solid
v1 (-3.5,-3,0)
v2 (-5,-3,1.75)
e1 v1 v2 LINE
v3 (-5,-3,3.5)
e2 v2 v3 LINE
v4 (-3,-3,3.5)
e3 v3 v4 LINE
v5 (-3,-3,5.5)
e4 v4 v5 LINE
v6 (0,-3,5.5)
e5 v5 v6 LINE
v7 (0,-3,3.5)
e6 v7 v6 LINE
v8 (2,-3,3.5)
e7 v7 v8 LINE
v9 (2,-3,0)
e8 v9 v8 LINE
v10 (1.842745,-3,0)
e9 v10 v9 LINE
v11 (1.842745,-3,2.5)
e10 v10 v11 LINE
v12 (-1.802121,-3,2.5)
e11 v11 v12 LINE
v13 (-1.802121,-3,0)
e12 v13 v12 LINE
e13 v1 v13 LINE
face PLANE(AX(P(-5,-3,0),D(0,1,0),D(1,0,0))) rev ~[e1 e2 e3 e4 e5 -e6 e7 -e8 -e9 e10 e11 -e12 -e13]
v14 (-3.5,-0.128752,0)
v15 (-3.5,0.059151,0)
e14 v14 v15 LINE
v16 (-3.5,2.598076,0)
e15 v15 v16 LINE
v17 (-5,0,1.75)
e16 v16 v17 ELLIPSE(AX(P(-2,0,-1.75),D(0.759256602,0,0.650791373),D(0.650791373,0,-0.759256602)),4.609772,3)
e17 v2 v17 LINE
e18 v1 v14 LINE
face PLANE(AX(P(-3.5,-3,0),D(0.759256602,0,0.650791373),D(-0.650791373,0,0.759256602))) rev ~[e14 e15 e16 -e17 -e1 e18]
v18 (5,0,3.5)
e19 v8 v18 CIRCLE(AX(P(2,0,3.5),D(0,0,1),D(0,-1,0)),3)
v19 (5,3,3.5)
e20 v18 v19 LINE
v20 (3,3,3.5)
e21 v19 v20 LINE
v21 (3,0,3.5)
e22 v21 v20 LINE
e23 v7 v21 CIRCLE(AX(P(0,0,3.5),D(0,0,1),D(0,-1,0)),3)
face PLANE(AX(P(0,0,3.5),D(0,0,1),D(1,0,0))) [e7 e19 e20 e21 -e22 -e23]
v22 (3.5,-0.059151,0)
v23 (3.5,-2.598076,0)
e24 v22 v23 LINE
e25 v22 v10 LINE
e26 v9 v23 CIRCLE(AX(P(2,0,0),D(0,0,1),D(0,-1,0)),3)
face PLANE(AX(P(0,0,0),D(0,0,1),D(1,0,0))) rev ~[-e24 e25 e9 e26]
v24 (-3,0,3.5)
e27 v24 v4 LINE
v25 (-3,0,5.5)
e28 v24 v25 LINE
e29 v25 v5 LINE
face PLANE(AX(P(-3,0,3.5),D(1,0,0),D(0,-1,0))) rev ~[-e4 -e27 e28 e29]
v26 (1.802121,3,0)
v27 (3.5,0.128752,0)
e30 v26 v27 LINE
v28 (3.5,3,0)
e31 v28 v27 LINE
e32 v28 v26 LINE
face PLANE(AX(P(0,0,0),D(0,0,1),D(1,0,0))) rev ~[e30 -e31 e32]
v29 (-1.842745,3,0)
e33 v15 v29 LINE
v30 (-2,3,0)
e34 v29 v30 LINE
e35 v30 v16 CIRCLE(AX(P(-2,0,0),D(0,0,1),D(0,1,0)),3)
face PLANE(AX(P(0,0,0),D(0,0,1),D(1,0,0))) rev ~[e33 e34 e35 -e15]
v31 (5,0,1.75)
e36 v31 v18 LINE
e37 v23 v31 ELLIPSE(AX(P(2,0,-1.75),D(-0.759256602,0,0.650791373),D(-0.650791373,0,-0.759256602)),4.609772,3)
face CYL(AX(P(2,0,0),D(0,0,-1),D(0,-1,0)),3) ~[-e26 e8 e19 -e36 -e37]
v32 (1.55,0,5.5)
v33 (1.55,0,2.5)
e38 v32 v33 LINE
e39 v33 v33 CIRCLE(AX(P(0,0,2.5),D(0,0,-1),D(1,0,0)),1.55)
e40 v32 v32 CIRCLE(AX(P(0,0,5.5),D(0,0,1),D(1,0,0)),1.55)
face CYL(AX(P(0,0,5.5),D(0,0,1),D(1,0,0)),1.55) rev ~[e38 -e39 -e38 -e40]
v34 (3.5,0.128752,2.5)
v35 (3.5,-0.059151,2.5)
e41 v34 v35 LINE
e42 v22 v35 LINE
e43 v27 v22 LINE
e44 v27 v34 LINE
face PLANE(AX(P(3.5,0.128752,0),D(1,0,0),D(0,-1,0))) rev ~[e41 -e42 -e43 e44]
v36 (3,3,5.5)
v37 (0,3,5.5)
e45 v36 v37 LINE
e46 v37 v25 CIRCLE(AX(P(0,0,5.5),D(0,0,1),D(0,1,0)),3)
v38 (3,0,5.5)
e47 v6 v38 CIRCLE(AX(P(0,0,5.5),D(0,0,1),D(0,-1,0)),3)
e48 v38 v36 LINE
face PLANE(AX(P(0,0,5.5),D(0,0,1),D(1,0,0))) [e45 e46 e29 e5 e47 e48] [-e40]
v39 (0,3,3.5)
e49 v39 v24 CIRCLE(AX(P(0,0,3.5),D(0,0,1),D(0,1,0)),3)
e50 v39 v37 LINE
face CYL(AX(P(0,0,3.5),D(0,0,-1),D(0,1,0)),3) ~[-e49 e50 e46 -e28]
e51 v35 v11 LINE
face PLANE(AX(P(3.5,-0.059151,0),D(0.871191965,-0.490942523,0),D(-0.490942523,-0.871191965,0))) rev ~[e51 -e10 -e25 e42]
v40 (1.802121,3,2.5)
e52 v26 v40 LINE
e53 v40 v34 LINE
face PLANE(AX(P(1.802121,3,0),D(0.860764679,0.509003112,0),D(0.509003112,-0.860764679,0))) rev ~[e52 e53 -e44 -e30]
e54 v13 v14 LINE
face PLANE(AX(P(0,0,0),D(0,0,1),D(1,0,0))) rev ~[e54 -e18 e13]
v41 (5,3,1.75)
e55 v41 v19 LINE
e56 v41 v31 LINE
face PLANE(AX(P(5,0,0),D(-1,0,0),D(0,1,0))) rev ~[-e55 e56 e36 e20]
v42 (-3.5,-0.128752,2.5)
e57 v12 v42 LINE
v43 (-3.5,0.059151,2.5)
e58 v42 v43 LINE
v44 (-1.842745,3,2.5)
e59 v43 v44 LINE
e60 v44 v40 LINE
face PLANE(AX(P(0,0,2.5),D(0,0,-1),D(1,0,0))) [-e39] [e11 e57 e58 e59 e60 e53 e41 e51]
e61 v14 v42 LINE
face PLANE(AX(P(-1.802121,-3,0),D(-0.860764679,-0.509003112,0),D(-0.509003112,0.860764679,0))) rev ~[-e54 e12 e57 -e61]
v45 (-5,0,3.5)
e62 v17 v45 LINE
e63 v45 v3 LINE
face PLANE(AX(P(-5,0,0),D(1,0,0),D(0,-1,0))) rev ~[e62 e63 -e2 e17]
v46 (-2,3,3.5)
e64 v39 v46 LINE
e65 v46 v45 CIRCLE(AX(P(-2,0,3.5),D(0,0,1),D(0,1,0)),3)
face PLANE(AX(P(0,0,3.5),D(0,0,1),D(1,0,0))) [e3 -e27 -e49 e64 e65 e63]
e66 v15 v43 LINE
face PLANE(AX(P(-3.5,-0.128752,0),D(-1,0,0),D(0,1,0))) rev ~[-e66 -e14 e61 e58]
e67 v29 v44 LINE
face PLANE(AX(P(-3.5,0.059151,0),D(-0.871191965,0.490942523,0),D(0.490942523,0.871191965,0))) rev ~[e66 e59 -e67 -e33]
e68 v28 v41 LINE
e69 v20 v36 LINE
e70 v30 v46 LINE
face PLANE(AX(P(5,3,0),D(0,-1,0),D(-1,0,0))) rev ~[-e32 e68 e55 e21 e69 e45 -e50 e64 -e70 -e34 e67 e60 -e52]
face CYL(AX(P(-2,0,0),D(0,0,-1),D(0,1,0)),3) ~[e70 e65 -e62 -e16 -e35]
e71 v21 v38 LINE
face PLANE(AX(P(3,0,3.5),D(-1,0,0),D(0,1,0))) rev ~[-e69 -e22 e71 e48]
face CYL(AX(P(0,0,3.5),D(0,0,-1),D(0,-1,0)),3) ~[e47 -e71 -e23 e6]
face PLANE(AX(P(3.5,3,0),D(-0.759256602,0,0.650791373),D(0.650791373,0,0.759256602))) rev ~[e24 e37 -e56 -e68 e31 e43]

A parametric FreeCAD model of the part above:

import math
import FreeCAD as App
import Part
import Sketcher

V = App.Vector
Q = App.Units.Quantity

doc = App.newDocument("Part")
body = doc.addObject("PartDesign::Body", "Body")

sketch1 = doc.addObject("Sketcher::SketchObject", "Sketch")
body.addObject(sketch1)
sketch1.AttachmentSupport = (doc.XY_Plane, [""])
sketch1.MapMode = "FlatFace"
sketch1.addGeometry(Part.LineSegment(V(-5, 0, 0), V(-5, -3, 0)), False)
sketch1.addGeometry(Part.LineSegment(V(-5, -3, 0), V(2, -3, 0)), False)
sketch1.addGeometry(Part.ArcOfCircle(Part.Circle(V(2, 0, 0), V(0, 0, 1), 3), math.radians(-90), math.radians(0)), False)
sketch1.addGeometry(Part.LineSegment(V(5, 0, 0), V(5, 3, 0)), False)
sketch1.addGeometry(Part.LineSegment(V(5, 3, 0), V(-2, 3, 0)), False)
sketch1.addGeometry(Part.ArcOfCircle(Part.Circle(V(-2, 0, 0), V(0, 0, 1), 3), math.radians(90), math.radians(180)), False)
sketch1.addConstraint(Sketcher.Constraint("Coincident", 0, 2, 1, 1))
sketch1.addConstraint(Sketcher.Constraint("Tangent", 1, 2, 2, 1))
sketch1.addConstraint(Sketcher.Constraint("Tangent", 2, 2, 3, 1))
sketch1.addConstraint(Sketcher.Constraint("Coincident", 3, 2, 4, 1))
sketch1.addConstraint(Sketcher.Constraint("Tangent", 4, 2, 5, 1))
sketch1.addConstraint(Sketcher.Constraint("Tangent", 5, 2, 0, 1))
sketch1.addConstraint(Sketcher.Constraint("Vertical", 0))
sketch1.addConstraint(Sketcher.Constraint("Horizontal", 1))
sketch1.addConstraint(Sketcher.Constraint("Vertical", 3))
sketch1.addConstraint(Sketcher.Constraint("Horizontal", 4))
sketch1.addConstraint(Sketcher.Constraint("Equal", 2, 5))
sketch1.addConstraint(Sketcher.Constraint("Symmetric", 2, 3, 5, 3, -1, 1))
sketch1.addConstraint(Sketcher.Constraint("PointOnObject", 2, 3, -1))
sketch1.addConstraint(Sketcher.Constraint("Radius", 2, Q("3 mm")))
sketch1.addConstraint(Sketcher.Constraint("DistanceX", 1, 1, 1, 2, Q("7 mm")))
pad1 = doc.addObject("PartDesign::Pad", "Pad")
body.addObject(pad1)
pad1.Profile = sketch1
pad1.Length = 3.5

sketch2 = doc.addObject("Sketcher::SketchObject", "Sketch001")
body.addObject(sketch2)
sketch2.AttachmentSupport = (doc.XY_Plane, [""])
sketch2.MapMode = "FlatFace"
sketch2.AttachmentOffset = App.Placement(V(0, 0, 3.5), App.Rotation())
sketch2.addGeometry(Part.LineSegment(V(3, 0, 0), V(3, 3, 0)), False)
sketch2.addGeometry(Part.LineSegment(V(3, 3, 0), V(0, 3, 0)), False)
sketch2.addGeometry(Part.ArcOfCircle(Part.Circle(V(0, 0, 0), V(0, 0, 1), 3), math.radians(90), math.radians(180)), False)
sketch2.addGeometry(Part.LineSegment(V(-3, 0, 0), V(-3, -3, 0)), False)
sketch2.addGeometry(Part.LineSegment(V(-3, -3, 0), V(0, -3, 0)), False)
sketch2.addGeometry(Part.ArcOfCircle(Part.Circle(V(0, 0, 0), V(0, 0, 1), 3), math.radians(-90), math.radians(0)), False)
sketch2.addConstraint(Sketcher.Constraint("Coincident", 0, 2, 1, 1))
sketch2.addConstraint(Sketcher.Constraint("Tangent", 1, 2, 2, 1))
sketch2.addConstraint(Sketcher.Constraint("Tangent", 2, 2, 3, 1))
sketch2.addConstraint(Sketcher.Constraint("Coincident", 3, 2, 4, 1))
sketch2.addConstraint(Sketcher.Constraint("Tangent", 4, 2, 5, 1))
sketch2.addConstraint(Sketcher.Constraint("Tangent", 5, 2, 0, 1))
sketch2.addConstraint(Sketcher.Constraint("Vertical", 0))
sketch2.addConstraint(Sketcher.Constraint("Horizontal", 1))
sketch2.addConstraint(Sketcher.Constraint("Vertical", 3))
sketch2.addConstraint(Sketcher.Constraint("Horizontal", 4))
sketch2.addConstraint(Sketcher.Constraint("Coincident", 2, 3, -1, 1))
sketch2.addConstraint(Sketcher.Constraint("Coincident", 5, 3, -1, 1))
sketch2.addConstraint(Sketcher.Constraint("Equal", 2, 5))
sketch2.addConstraint(Sketcher.Constraint("Radius", 2, Q("3 mm")))
pad2 = doc.addObject("PartDesign::Pad", "Pad001")
body.addObject(pad2)
pad2.Profile = sketch2
pad2.Length = 2

sketch3 = doc.addObject("Sketcher::SketchObject", "Sketch002")
body.addObject(sketch3)
sketch3.AttachmentSupport = (doc.XY_Plane, [""])
sketch3.MapMode = "FlatFace"
sketch3.AttachmentOffset = App.Placement(V(0, 0, 5.5), App.Rotation())
sketch3.addGeometry(Part.Circle(V(0, 0, 0), V(0, 0, 1), 1.55), False)
sketch3.addConstraint(Sketcher.Constraint("Coincident", 0, 3, -1, 1))
sketch3.addConstraint(Sketcher.Constraint("Diameter", 0, Q("3.1 mm")))
pocket1 = doc.addObject("PartDesign::Pocket", "Pocket")
body.addObject(pocket1)
pocket1.Profile = sketch3
pocket1.Length = 25

sketch4 = doc.addObject("Sketcher::SketchObject", "Sketch003")
body.addObject(sketch4)
sketch4.AttachmentSupport = (doc.XZ_Plane, [""])
sketch4.MapMode = "FlatFace"
sketch4.AttachmentOffset = App.Placement(V(0, 0, 3), App.Rotation())
sketch4.addGeometry(Part.LineSegment(V(-3.5, 0, 0), V(-5, 1.75, 0)), False)
sketch4.addGeometry(Part.LineSegment(V(-5, 1.75, 0), V(-5, 0, 0)), False)
sketch4.addGeometry(Part.LineSegment(V(-5, 0, 0), V(-3.5, 0, 0)), False)
sketch4.addConstraint(Sketcher.Constraint("Coincident", 0, 2, 1, 1))
sketch4.addConstraint(Sketcher.Constraint("Coincident", 1, 2, 2, 1))
sketch4.addConstraint(Sketcher.Constraint("Coincident", 2, 2, 0, 1))
sketch4.addConstraint(Sketcher.Constraint("Vertical", 1))
sketch4.addConstraint(Sketcher.Constraint("Horizontal", 2))
sketch4.addConstraint(Sketcher.Constraint("PointOnObject", 1, 2, -1))
sketch4.addConstraint(Sketcher.Constraint("DistanceX", 2, 1, 2, 2, Q("1.5 mm")))
sketch4.addConstraint(Sketcher.Constraint("DistanceX", 0, 2, -1, 1, Q("5 mm")))
sketch4.addConstraint(Sketcher.Constraint("DistanceY", 1, 2, 1, 1, Q("1.75 mm")))
pocket2 = doc.addObject("PartDesign::Pocket", "Pocket001")
body.addObject(pocket2)
pocket2.Profile = sketch4
pocket2.Length = 25

sketch5 = doc.addObject("Sketcher::SketchObject", "Sketch004")
body.addObject(sketch5)
sketch5.AttachmentSupport = (doc.XZ_Plane, [""])
sketch5.MapMode = "FlatFace"
sketch5.AttachmentOffset = App.Placement(V(0, 0, -3), App.Rotation())
sketch5.addGeometry(Part.LineSegment(V(5, 0, 0), V(3.5, 0, 0)), False)
sketch5.addGeometry(Part.LineSegment(V(3.5, 0, 0), V(5, 1.75, 0)), False)
sketch5.addGeometry(Part.LineSegment(V(5, 1.75, 0), V(5, 0, 0)), False)
sketch5.addConstraint(Sketcher.Constraint("Coincident", 0, 2, 1, 1))
sketch5.addConstraint(Sketcher.Constraint("Coincident", 1, 2, 2, 1))
sketch5.addConstraint(Sketcher.Constraint("Coincident", 2, 2, 0, 1))
sketch5.addConstraint(Sketcher.Constraint("Horizontal", 0))
sketch5.addConstraint(Sketcher.Constraint("Vertical", 2))
sketch5.addConstraint(Sketcher.Constraint("PointOnObject", 0, 2, -1))
sketch5.addConstraint(Sketcher.Constraint("DistanceX", 0, 2, 0, 1, Q("1.5 mm")))
sketch5.addConstraint(Sketcher.Constraint("DistanceX", -1, 1, 1, 2, Q("5 mm")))
sketch5.addConstraint(Sketcher.Constraint("DistanceY", 2, 2, 2, 1, Q("1.75 mm")))
pocket3 = doc.addObject("PartDesign::Pocket", "Pocket002")
body.addObject(pocket3)
pocket3.Profile = sketch5
pocket3.Length = 25
pocket3.Reversed = True

sketch6 = doc.addObject("Sketcher::SketchObject", "Sketch005")
body.addObject(sketch6)
sketch6.AttachmentSupport = (doc.XY_Plane, [""])
sketch6.MapMode = "FlatFace"
sketch6.addGeometry(Part.LineSegment(V(1.802121, 3, 0), V(3.5, 0.128752, 0)), False)
sketch6.addGeometry(Part.LineSegment(V(3.5, 0.128752, 0), V(3.5, -0.059151, 0)), False)
sketch6.addGeometry(Part.LineSegment(V(3.5, -0.059151, 0), V(1.842745, -3, 0)), False)
sketch6.addGeometry(Part.LineSegment(V(1.842745, -3, 0), V(-1.802121, -3, 0)), False)
sketch6.addGeometry(Part.LineSegment(V(-1.802121, -3, 0), V(-3.5, -0.128752, 0)), False)
sketch6.addGeometry(Part.LineSegment(V(-3.5, -0.128752, 0), V(-3.5, 0.059151, 0)), False)
sketch6.addGeometry(Part.LineSegment(V(-3.5, 0.059151, 0), V(-1.842745, 3, 0)), False)
sketch6.addGeometry(Part.LineSegment(V(-1.842745, 3, 0), V(1.802121, 3, 0)), False)
sketch6.addGeometry(Part.Circle(V(0, 0, 0), V(0, 0, 1), 1.55), False)
sketch6.addConstraint(Sketcher.Constraint("Coincident", 0, 2, 1, 1))
sketch6.addConstraint(Sketcher.Constraint("Coincident", 1, 2, 2, 1))
sketch6.addConstraint(Sketcher.Constraint("Coincident", 2, 2, 3, 1))
sketch6.addConstraint(Sketcher.Constraint("Coincident", 3, 2, 4, 1))
sketch6.addConstraint(Sketcher.Constraint("Coincident", 4, 2, 5, 1))
sketch6.addConstraint(Sketcher.Constraint("Coincident", 5, 2, 6, 1))
sketch6.addConstraint(Sketcher.Constraint("Coincident", 6, 2, 7, 1))
sketch6.addConstraint(Sketcher.Constraint("Coincident", 7, 2, 0, 1))
sketch6.addConstraint(Sketcher.Constraint("Vertical", 1))
sketch6.addConstraint(Sketcher.Constraint("Horizontal", 3))
sketch6.addConstraint(Sketcher.Constraint("Vertical", 5))
sketch6.addConstraint(Sketcher.Constraint("Horizontal", 7))
sketch6.addConstraint(Sketcher.Constraint("Coincident", 8, 3, -1, 1))
sketch6.addConstraint(Sketcher.Constraint("Symmetric", 0, 2, 4, 2, -1, 1))
sketch6.addConstraint(Sketcher.Constraint("Symmetric", 2, 2, 6, 2, -1, 1))
sketch6.addConstraint(Sketcher.Constraint("Parallel", 0, 4))
sketch6.addConstraint(Sketcher.Constraint("Parallel", 2, 6))
sketch6.addConstraint(Sketcher.Constraint("Diameter", 8, Q("3.1 mm")))
sketch6.addConstraint(Sketcher.Constraint("DistanceY", 2, 2, -1, 1, Q("3 mm")))
sketch6.addConstraint(Sketcher.Constraint("DistanceX", 4, 2, 1, 2, Q("7 mm")))
sketch6.addConstraint(Sketcher.Constraint("DistanceY", 4, 2, 1, 2, Q("0.069601 mm")))
sketch6.addConstraint(Sketcher.Constraint("Distance", 2, Q("3.375661 mm")))
sketch6.addConstraint(Sketcher.Constraint("DistanceX", 3, 2, 3, 1, Q("3.644866 mm")))
sketch6.addConstraint(Sketcher.Constraint("DistanceY", 1, 2, 1, 1, Q("0.187904 mm")))
pocket4 = doc.addObject("PartDesign::Pocket", "Pocket003")
body.addObject(pocket4)
pocket4.Profile = sketch6
pocket4.Length = 2.5
pocket4.Reversed = True

doc.recompute()
